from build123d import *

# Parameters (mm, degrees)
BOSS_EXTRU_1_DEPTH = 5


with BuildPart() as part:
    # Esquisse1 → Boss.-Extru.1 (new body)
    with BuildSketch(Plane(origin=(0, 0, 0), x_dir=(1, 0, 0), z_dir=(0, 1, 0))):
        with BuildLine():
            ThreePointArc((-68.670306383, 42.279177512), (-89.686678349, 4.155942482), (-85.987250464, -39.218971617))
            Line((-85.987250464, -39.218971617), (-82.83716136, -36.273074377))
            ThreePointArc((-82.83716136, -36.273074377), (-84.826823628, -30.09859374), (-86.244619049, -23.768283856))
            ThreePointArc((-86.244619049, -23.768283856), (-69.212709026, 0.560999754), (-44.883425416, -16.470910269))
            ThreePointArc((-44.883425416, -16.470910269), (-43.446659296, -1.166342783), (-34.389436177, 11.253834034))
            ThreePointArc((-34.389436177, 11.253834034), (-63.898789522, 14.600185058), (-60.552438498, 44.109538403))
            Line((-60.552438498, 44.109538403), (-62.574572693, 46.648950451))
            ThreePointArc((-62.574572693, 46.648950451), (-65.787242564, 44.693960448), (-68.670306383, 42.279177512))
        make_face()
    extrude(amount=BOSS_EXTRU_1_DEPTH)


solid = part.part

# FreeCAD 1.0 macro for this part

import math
import FreeCAD as App
import Part
import Sketcher

V = App.Vector

doc = App.newDocument("Part")
body = doc.addObject("PartDesign::Body", "Body")

sketch1 = body.newObject("Sketcher::SketchObject", "Sketch")
sketch1.AttachmentSupport = (doc.getObject("XZ_Plane"), [""])
sketch1.MapMode = "FlatFace"
sketch1.addGeometry([
    Part.ArcOfCircle(Part.Circle(V(-16.3, 11.4, 0), V(0, 0, 1), 75), math.radians(158), math.radians(226)),
    Part.LineSegment(V(-86, 39.2, 0), V(-82.8, 36.3, 0)),
    Part.ArcOfCircle(Part.Circle(V(-16.3, 11.4, 0), V(0, 0, 1), 71), math.radians(159.52), math.radians(169.99)),
    Part.ArcOfCircle(Part.Circle(V(-65.6, 20.1, 0), V(0, 0, 1), 21), math.radians(170), math.radians(350)),
    Part.ArcOfCircle(Part.Circle(V(-16.3, 11.4, 0), V(0, 0, 1), 29), math.radians(170), math.radians(231)),
    Part.ArcOfCircle(Part.Circle(V(-47.5, -27.7, 0), V(0, 0, 1), 21), math.radians(51), math.radians(231)),
    Part.LineSegment(V(-60.6, -44.1, 0), V(-62.6, -46.6, 0)),
    Part.ArcOfCircle(Part.Circle(V(-51.2, -24.4, 0), V(0, 0, 1), 25), math.radians(-134.26), math.radians(-117.01)),
], False)
sketch1.addConstraint([
    Sketcher.Constraint("Coincident", 0, 1, 1, 1),
    Sketcher.Constraint("Coincident", 1, 2, 2, 1),
    Sketcher.Constraint("Tangent", 2, 2, 3, 1),
    Sketcher.Constraint("Tangent", 3, 2, 4, 1),
    Sketcher.Constraint("Tangent", 4, 2, 5, 1),
    Sketcher.Constraint("Coincident", 5, 2, 6, 1),
    Sketcher.Constraint("Coincident", 6, 2, 7, 2),
    Sketcher.Constraint("Tangent", 7, 1, 0, 2),
    Sketcher.Constraint("Coincident", 2, 3, 0, 3),
    Sketcher.Constraint("Coincident", 4, 3, 0, 3),
    Sketcher.Constraint("Equal", 3, 5),
    Sketcher.Constraint("Radius", 0, 75.0),
    Sketcher.Constraint("Radius", 2, 71.0),
    Sketcher.Constraint("Radius", 3, 21.0),
    Sketcher.Constraint("Radius", 7, 25.0),
    Sketcher.Constraint("DistanceX", 7, 3, 4, 3, 34.8972),
    Sketcher.Constraint("DistanceX", 5, 3, 4, 2, 13.081501),
    Sketcher.Constraint("DistanceX", 5, 2, 5, 3, 13.081501),
    Sketcher.Constraint("Distance", 1, 4.312931),
    Sketcher.Constraint("DistanceY", 7, 3, -1, 1, 24.375369),
    Sketcher.Constraint("DistanceX", 0, 1, -1, 1, 85.98725),
    Sketcher.Constraint("DistanceY", -1, 1, 0, 1, 39.218972),
    Sketcher.Constraint("DistanceX", 2, 2, -1, 1, 86.244619),
    Sketcher.Constraint("DistanceY", 6, 2, -1, 1, 46.64895),
])
pad1 = body.newObject("PartDesign::Pad", "Pad")
pad1.Profile = sketch1
pad1.Length = 5
pad1.Reversed = True

doc.recompute()
